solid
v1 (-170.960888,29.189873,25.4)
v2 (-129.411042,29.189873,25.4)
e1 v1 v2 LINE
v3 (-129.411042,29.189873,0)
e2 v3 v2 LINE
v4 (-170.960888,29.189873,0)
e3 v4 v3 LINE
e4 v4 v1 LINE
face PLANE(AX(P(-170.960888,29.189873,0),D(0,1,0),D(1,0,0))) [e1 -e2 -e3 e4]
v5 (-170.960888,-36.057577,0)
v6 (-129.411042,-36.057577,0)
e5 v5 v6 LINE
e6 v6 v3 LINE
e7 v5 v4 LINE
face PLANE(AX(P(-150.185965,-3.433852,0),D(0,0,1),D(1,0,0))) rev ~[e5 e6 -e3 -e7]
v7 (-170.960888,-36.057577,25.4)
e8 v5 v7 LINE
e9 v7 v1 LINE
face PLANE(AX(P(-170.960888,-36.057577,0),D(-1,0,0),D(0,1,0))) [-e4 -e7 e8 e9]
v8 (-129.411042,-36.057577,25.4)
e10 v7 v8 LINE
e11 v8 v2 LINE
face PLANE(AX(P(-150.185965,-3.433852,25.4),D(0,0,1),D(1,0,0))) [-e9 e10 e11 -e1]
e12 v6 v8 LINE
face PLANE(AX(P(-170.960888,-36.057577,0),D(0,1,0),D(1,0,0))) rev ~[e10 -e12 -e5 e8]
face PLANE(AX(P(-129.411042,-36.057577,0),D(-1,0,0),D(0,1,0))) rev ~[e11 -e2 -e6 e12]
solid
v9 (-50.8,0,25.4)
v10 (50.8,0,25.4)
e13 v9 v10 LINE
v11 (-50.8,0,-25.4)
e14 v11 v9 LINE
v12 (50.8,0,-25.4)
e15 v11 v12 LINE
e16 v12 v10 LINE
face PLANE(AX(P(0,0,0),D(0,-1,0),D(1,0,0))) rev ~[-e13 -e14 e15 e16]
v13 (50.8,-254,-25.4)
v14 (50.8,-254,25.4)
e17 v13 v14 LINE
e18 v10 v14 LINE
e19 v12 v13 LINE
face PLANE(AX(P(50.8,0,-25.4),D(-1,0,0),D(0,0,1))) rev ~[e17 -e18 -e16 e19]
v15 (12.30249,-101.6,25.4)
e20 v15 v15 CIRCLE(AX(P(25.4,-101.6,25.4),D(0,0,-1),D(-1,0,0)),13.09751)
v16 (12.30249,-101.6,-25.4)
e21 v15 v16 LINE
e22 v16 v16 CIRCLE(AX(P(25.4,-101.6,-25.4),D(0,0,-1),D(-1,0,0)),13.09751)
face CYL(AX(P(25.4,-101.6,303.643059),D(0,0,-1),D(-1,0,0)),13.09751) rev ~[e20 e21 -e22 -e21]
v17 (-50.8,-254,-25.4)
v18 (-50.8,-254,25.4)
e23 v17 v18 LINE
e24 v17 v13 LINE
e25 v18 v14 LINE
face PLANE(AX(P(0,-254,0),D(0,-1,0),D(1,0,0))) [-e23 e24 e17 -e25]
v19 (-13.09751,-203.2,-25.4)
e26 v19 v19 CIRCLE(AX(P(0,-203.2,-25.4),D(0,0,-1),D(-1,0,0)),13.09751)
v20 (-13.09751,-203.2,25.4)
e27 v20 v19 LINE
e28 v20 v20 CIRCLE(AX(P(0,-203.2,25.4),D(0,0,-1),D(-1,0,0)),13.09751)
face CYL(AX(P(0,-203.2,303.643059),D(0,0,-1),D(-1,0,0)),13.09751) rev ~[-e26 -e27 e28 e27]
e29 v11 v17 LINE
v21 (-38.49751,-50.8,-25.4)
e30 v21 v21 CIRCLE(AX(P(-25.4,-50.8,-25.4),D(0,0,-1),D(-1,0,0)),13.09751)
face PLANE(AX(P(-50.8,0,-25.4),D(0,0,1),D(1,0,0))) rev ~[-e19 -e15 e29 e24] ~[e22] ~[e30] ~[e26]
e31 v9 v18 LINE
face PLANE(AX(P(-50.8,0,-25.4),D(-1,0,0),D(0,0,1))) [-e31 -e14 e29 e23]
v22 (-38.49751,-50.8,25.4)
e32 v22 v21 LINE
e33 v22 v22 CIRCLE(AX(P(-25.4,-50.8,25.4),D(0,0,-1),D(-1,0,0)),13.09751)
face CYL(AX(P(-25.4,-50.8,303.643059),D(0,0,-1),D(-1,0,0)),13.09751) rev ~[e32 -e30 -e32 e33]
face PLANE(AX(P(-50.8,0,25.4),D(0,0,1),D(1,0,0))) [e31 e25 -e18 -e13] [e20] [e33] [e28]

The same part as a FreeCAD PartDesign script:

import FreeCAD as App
import Part
import Sketcher
from FreeCAD import Vector
Q = App.Units.Quantity

doc = App.newDocument("Part")
body = doc.addObject("PartDesign::Body", "Body")

# Sketch on XZ plane
sketch1 = body.newObject("Sketcher::SketchObject", "Sketch")
sketch1.AttachmentSupport = (doc.getObject("XZ_Plane"), [""])
sketch1.MapMode = "FlatFace"
sketch1.addGeometry(Part.LineSegment(Vector(-51, 25, 0), Vector(-51, -25, 0)), False)
sketch1.addGeometry(Part.LineSegment(Vector(-51, -25, 0), Vector(51, -25, 0)), False)
sketch1.addGeometry(Part.LineSegment(Vector(51, -25, 0), Vector(51, 25, 0)), False)
sketch1.addGeometry(Part.LineSegment(Vector(51, 25, 0), Vector(-51, 25, 0)), False)
sketch1.addConstraint(Sketcher.Constraint("Coincident", 0, 2, 1, 1))
sketch1.addConstraint(Sketcher.Constraint("Coincident", 1, 2, 2, 1))
sketch1.addConstraint(Sketcher.Constraint("Coincident", 2, 2, 3, 1))
sketch1.addConstraint(Sketcher.Constraint("Coincident", 3, 2, 0, 1))
sketch1.addConstraint(Sketcher.Constraint("Vertical", 0))
sketch1.addConstraint(Sketcher.Constraint("Horizontal", 1))
sketch1.addConstraint(Sketcher.Constraint("Vertical", 2))
sketch1.addConstraint(Sketcher.Constraint("Horizontal", 3))
sketch1.addConstraint(Sketcher.Constraint("Symmetric", 0, 2, 2, 2, -1, 1))
sketch1.addConstraint(Sketcher.Constraint("DistanceX", 1, 1, 1, 2, Q("4 in")))
sketch1.addConstraint(Sketcher.Constraint("DistanceY", 0, 2, 0, 1, Q("2 in")))
pad1 = body.newObject("PartDesign::Pad", "Pad")
pad1.Profile = sketch1
pad1.Length = Q("10 in")

# Sketch on XY plane
sketch2 = body.newObject("Sketcher::SketchObject", "Sketch001")
sketch2.AttachmentSupport = (doc.getObject("XY_Plane"), [""])
sketch2.MapMode = "FlatFace"
sketch2.AttachmentOffset = App.Placement(Vector(0, 0, 1 * 25.4), App.Rotation())
sketch2.addGeometry(Part.Circle(Vector(0, -203, 0), Vector(0, 0, 1), 13), False)
sketch2.addGeometry(Part.Circle(Vector(25, -102, 0), Vector(0, 0, 1), 13), False)
sketch2.addGeometry(Part.Circle(Vector(-25, -51, 0), Vector(0, 0, 1), 13), False)
sketch2.addConstraint(Sketcher.Constraint("Equal", 0, 1))
sketch2.addConstraint(Sketcher.Constraint("Equal", 1, 2))
sketch2.addConstraint(Sketcher.Constraint("PointOnObject", 0, 3, -2))
sketch2.addConstraint(Sketcher.Constraint("DistanceY", 0, 3, -1, 1, Q("8 in")))
sketch2.addConstraint(Sketcher.Constraint("DistanceX", -1, 1, 1, 3, Q("1 in")))
sketch2.addConstraint(Sketcher.Constraint("DistanceY", 1, 3, -1, 1, Q("4 in")))
sketch2.addConstraint(Sketcher.Constraint("DistanceX", 2, 3, -1, 1, Q("1 in")))
sketch2.addConstraint(Sketcher.Constraint("DistanceY", 2, 3, -1, 1, Q("2 in")))
sketch2.addConstraint(Sketcher.Constraint("Diameter", 0, Q("1.0313 in")))
doc.recompute()
hole = body.newObject("PartDesign::Hole", "Hole")
hole.Profile = sketch2
hole.ThreadType = "None"
hole.Diameter = Q("1.0313 in")
hole.DepthType = "ThroughAll"
body2 = doc.addObject("PartDesign::Body", "Body001")

# Sketch on XY plane
sketch3 = body2.newObject("Sketcher::SketchObject", "Sketch002")
sketch3.AttachmentSupport = (doc.getObject("XY_Plane001"), [""])
sketch3.MapMode = "FlatFace"
sketch3.addGeometry(Part.LineSegment(Vector(-171, 29, 0), Vector(-171, -36, 0)), False)
sketch3.addGeometry(Part.LineSegment(Vector(-171, -36, 0), Vector(-129, -36, 0)), False)
sketch3.addGeometry(Part.LineSegment(Vector(-129, -36, 0), Vector(-129, 29, 0)), False)
sketch3.addGeometry(Part.LineSegment(Vector(-129, 29, 0), Vector(-171, 29, 0)), False)
sketch3.addConstraint(Sketcher.Constraint("Coincident", 0, 2, 1, 1))
sketch3.addConstraint(Sketcher.Constraint("Coincident", 1, 2, 2, 1))
sketch3.addConstraint(Sketcher.Constraint("Coincident", 2, 2, 3, 1))
sketch3.addConstraint(Sketcher.Constraint("Coincident", 3, 2, 0, 1))
sketch3.addConstraint(Sketcher.Constraint("Vertical", 0))
sketch3.addConstraint(Sketcher.Constraint("Horizontal", 1))
sketch3.addConstraint(Sketcher.Constraint("Vertical", 2))
sketch3.addConstraint(Sketcher.Constraint("Horizontal", 3))
sketch3.addConstraint(Sketcher.Constraint("DistanceY", 0, 2, 0, 1, Q("65.24745 mm")))
sketch3.addConstraint(Sketcher.Constraint("DistanceX", 1, 1, 1, 2, Q("41.549847 mm")))
sketch3.addConstraint(Sketcher.Constraint("DistanceX", 0, 2, -1, 1, Q("170.960888 mm")))
sketch3.addConstraint(Sketcher.Constraint("DistanceY", 0, 2, -1, 1, Q("36.057577 mm")))
pad2 = body2.newObject("PartDesign::Pad", "Pad001")
pad2.Profile = sketch3
pad2.Length = Q("1 in")

doc.recompute()
